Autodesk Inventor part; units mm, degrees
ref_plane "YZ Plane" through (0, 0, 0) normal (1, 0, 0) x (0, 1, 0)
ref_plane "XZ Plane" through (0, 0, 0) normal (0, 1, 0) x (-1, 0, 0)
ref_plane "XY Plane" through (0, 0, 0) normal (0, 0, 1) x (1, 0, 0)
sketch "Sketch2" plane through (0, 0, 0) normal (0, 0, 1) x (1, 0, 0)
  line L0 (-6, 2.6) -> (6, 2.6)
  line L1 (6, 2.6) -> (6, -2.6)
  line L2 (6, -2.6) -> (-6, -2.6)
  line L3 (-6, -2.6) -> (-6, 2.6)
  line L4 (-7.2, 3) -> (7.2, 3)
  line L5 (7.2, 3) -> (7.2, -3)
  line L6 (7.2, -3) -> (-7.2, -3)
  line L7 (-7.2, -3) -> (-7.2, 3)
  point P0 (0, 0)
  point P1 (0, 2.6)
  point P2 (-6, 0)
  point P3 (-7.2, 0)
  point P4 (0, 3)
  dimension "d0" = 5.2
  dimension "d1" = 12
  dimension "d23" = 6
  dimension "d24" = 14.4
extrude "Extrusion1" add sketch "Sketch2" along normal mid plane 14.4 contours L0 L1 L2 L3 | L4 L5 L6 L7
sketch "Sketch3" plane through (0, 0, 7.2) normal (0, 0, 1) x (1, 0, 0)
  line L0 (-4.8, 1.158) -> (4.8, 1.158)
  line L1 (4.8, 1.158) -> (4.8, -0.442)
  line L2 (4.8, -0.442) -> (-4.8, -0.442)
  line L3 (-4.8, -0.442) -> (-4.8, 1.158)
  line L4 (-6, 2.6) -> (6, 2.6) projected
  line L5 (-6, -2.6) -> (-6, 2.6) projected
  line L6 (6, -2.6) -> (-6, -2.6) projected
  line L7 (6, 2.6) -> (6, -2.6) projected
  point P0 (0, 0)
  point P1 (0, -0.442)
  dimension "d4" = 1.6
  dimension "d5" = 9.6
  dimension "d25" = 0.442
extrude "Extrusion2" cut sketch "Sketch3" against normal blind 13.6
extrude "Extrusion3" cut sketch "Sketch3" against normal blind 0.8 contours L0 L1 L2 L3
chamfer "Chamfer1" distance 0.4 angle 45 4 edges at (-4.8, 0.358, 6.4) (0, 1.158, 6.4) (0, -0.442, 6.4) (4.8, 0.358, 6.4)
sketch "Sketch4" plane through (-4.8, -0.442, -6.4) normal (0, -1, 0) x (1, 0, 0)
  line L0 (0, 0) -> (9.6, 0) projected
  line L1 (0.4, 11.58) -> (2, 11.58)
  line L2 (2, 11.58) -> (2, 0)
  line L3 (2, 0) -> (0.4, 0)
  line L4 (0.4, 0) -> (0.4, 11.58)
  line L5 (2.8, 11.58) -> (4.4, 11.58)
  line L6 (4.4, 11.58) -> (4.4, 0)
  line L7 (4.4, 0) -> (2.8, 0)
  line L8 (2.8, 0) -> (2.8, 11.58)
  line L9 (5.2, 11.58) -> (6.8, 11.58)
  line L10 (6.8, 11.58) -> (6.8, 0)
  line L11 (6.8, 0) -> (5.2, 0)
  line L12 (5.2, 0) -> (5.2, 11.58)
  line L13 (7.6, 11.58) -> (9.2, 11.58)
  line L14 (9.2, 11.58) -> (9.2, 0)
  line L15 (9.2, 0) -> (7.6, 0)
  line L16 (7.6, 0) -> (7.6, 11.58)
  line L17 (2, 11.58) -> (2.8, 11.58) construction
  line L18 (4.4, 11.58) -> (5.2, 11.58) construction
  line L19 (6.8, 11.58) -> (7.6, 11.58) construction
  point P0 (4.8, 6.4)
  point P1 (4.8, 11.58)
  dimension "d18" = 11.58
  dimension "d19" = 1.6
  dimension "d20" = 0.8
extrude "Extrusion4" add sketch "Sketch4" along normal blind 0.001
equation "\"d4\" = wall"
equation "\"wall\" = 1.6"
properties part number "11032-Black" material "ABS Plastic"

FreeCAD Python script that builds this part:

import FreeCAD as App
import Part
import Sketcher
Q = App.Units.Quantity


def edges_at(feature, points):
    """Names of the edges that pass closest to the given points."""
    edges = feature.Shape.Edges
    near = lambda p: min(range(len(edges)), key=lambda i: edges[i].distToShape(Part.Vertex(*p))[0])
    return sorted({f"Edge{near(p) + 1}" for p in points})


def add_polygon(sketch, points):
    """Adds a closed chain of lines whose ends are joined by coincident constraints."""
    first, n = sketch.GeometryCount, len(points)
    for a, b in zip(points, points[1:] + points[:1]):
        sketch.addGeometry(Part.LineSegment(App.Vector(*a, 0), App.Vector(*b, 0)), False)
    for i in range(n):
        sketch.addConstraint(Sketcher.Constraint("Coincident", first + i, 2, first + (i + 1) % n, 1))

doc = App.newDocument("Part")
body = doc.addObject("PartDesign::Body", "Body")

sketch1 = body.newObject("Sketcher::SketchObject", "Sketch")
sketch1.AttachmentSupport = (doc.getObject("XY_Plane"), [""])
sketch1.MapMode = "FlatFace"
add_polygon(sketch1, [(7, 3), (-7, 3), (-7, -3), (7, -3)])
sketch1.addConstraint([
    Sketcher.Constraint("Horizontal", 0),
    Sketcher.Constraint("Vertical", 1),
    Sketcher.Constraint("Horizontal", 2),
    Sketcher.Constraint("Vertical", 3),
    Sketcher.Constraint("Symmetric", 0, 2, 2, 2, -1, 1),
    Sketcher.Constraint("DistanceY", 1, 2, 1, 1, Q("6 mm")),
    Sketcher.Constraint("DistanceX", 0, 2, 0, 1, Q("14.4 mm")),
])
pad1 = body.newObject("PartDesign::Pad", "Pad")
pad1.Profile = sketch1
pad1.Length = 14.4
pad1.Midplane = True

sketch2 = body.newObject("Sketcher::SketchObject", "Sketch001")
sketch2.AttachmentSupport = (doc.getObject("XY_Plane"), [""])
sketch2.MapMode = "FlatFace"
sketch2.AttachmentOffset = App.Placement(App.Vector(0, 0, 7.2), App.Rotation())
add_polygon(sketch2, [(6, 2.6), (-6, 2.6), (-6, -2.6), (6, -2.6)])
add_polygon(sketch2, [(-4.8, -0.4), (-4.8, 1.2), (4.8, 1.2), (4.8, -0.4)])
sketch2.addConstraint([
    Sketcher.Constraint("Horizontal", 0),
    Sketcher.Constraint("Vertical", 1),
    Sketcher.Constraint("Horizontal", 2),
    Sketcher.Constraint("Vertical", 3),
    Sketcher.Constraint("Vertical", 4),
    Sketcher.Constraint("Horizontal", 5),
    Sketcher.Constraint("Vertical", 6),
    Sketcher.Constraint("Horizontal", 7),
    Sketcher.Constraint("Symmetric", 0, 2, 2, 2, -1, 1),
    Sketcher.Constraint("DistanceX", 5, 1, 5, 2, Q("9.6 mm")),
    Sketcher.Constraint("DistanceY", 4, 1, 4, 2, Q("1.6 mm")),
    Sketcher.Constraint("DistanceX", 0, 2, 0, 1, Q("12 mm")),
    Sketcher.Constraint("DistanceY", 1, 2, 1, 1, Q("5.2 mm")),
    Sketcher.Constraint("DistanceY", 6, 2, -1, 1, Q("0.442 mm")),
    Sketcher.Constraint("DistanceX", 4, 2, -1, 1, Q("4.8 mm")),
])
pocket1 = body.newObject("PartDesign::Pocket", "Pocket")
pocket1.Profile = sketch2
pocket1.Length = 13.6

sketch3 = body.newObject("Sketcher::SketchObject", "Sketch002")
sketch3.AttachmentSupport = (doc.getObject("XY_Plane"), [""])
sketch3.MapMode = "FlatFace"
sketch3.AttachmentOffset = App.Placement(App.Vector(0, 0, 7.2), App.Rotation())
add_polygon(sketch3, [(4.8, 1.2), (-4.8, 1.2), (-4.8, -0.4), (4.8, -0.4)])
sketch3.addConstraint([
    Sketcher.Constraint("Horizontal", 0),
    Sketcher.Constraint("Vertical", 1),
    Sketcher.Constraint("Horizontal", 2),
    Sketcher.Constraint("Vertical", 3),
    Sketcher.Constraint("DistanceX", 0, 2, 0, 1, Q("9.6 mm")),
    Sketcher.Constraint("DistanceY", 1, 2, 1, 1, Q("1.6 mm")),
    Sketcher.Constraint("DistanceY", 1, 2, -1, 1, Q("0.442 mm")),
    Sketcher.Constraint("DistanceX", 0, 2, -1, 1, Q("4.8 mm")),
])
pocket2 = body.newObject("PartDesign::Pocket", "Pocket001")
pocket2.Profile = sketch3
pocket2.Length = 0.8
doc.recompute()

chamfer = body.newObject("PartDesign::Chamfer", "Chamfer")
chamfer.Base = (pocket2, edges_at(pocket2, [
    (-4.8, 0.358, 6.4),
    (0, 1.158, 6.4),
    (0, -0.442, 6.4),
    (4.8, 0.358, 6.4),
]))
chamfer.Size = 0.4

sketch4 = body.newObject("Sketcher::SketchObject", "Sketch003")
sketch4.AttachmentSupport = (doc.getObject("XZ_Plane"), [""])
sketch4.MapMode = "FlatFace"
sketch4.AttachmentOffset = App.Placement(App.Vector(0, 0, 0.442), App.Rotation())
add_polygon(sketch4, [(-4.4, 5.2), (-4.4, -6.4), (-2.8, -6.4), (-2.8, 5.2)])
add_polygon(sketch4, [(2.8, 5.2), (2.8, -6.4), (4.4, -6.4), (4.4, 5.2)])
add_polygon(sketch4, [(0.4, 5.2), (0.4, -6.4), (2, -6.4), (2, 5.2)])
add_polygon(sketch4, [(-2, 5.2), (-2, -6.4), (-0.4, -6.4), (-0.4, 5.2)])
sketch4.addConstraint([
    Sketcher.Constraint("Vertical", 0),
    Sketcher.Constraint("Horizontal", 1),
    Sketcher.Constraint("Vertical", 2),
    Sketcher.Constraint("Horizontal", 3),
    Sketcher.Constraint("Vertical", 4),
    Sketcher.Constraint("Horizontal", 5),
    Sketcher.Constraint("Vertical", 6),
    Sketcher.Constraint("Horizontal", 7),
    Sketcher.Constraint("Vertical", 8),
    Sketcher.Constraint("Horizontal", 9),
    Sketcher.Constraint("Vertical", 10),
    Sketcher.Constraint("Horizontal", 11),
    Sketcher.Constraint("Vertical", 12),
    Sketcher.Constraint("Horizontal", 13),
    Sketcher.Constraint("Vertical", 14),
    Sketcher.Constraint("Horizontal", 15),
    Sketcher.Constraint("Symmetric", 1, 2, 4, 2, -2),
    Sketcher.Constraint("Symmetric", 3, 2, 6, 2, -2),
    Sketcher.Constraint("Symmetric", 9, 2, 12, 2, -2),
    Sketcher.Constraint("Symmetric", 11, 2, 14, 2, -2),
    Sketcher.Constraint("Horizontal", 5, 2, 8, 2),
    Sketcher.Constraint("Horizontal", 7, 2, 10, 2),
    Sketcher.Constraint("Equal", 7, 9),
    Sketcher.Constraint("DistanceX", 1, 1, 1, 2, Q("1.6 mm")),
    Sketcher.Constraint("DistanceY", 0, 2, 0, 1, Q("11.58 mm")),
    Sketcher.Constraint("DistanceX", 9, 2, 4, 2, Q("0.8 mm")),
    Sketcher.Constraint("DistanceX", 13, 2, 8, 2, Q("0.8 mm")),
    Sketcher.Constraint("DistanceY", 0, 2, -1, 1, Q("6.4 mm")),
])
pad2 = body.newObject("PartDesign::Pad", "Pad001")
pad2.Profile = sketch4
pad2.Length = 0.001

doc.recompute()
